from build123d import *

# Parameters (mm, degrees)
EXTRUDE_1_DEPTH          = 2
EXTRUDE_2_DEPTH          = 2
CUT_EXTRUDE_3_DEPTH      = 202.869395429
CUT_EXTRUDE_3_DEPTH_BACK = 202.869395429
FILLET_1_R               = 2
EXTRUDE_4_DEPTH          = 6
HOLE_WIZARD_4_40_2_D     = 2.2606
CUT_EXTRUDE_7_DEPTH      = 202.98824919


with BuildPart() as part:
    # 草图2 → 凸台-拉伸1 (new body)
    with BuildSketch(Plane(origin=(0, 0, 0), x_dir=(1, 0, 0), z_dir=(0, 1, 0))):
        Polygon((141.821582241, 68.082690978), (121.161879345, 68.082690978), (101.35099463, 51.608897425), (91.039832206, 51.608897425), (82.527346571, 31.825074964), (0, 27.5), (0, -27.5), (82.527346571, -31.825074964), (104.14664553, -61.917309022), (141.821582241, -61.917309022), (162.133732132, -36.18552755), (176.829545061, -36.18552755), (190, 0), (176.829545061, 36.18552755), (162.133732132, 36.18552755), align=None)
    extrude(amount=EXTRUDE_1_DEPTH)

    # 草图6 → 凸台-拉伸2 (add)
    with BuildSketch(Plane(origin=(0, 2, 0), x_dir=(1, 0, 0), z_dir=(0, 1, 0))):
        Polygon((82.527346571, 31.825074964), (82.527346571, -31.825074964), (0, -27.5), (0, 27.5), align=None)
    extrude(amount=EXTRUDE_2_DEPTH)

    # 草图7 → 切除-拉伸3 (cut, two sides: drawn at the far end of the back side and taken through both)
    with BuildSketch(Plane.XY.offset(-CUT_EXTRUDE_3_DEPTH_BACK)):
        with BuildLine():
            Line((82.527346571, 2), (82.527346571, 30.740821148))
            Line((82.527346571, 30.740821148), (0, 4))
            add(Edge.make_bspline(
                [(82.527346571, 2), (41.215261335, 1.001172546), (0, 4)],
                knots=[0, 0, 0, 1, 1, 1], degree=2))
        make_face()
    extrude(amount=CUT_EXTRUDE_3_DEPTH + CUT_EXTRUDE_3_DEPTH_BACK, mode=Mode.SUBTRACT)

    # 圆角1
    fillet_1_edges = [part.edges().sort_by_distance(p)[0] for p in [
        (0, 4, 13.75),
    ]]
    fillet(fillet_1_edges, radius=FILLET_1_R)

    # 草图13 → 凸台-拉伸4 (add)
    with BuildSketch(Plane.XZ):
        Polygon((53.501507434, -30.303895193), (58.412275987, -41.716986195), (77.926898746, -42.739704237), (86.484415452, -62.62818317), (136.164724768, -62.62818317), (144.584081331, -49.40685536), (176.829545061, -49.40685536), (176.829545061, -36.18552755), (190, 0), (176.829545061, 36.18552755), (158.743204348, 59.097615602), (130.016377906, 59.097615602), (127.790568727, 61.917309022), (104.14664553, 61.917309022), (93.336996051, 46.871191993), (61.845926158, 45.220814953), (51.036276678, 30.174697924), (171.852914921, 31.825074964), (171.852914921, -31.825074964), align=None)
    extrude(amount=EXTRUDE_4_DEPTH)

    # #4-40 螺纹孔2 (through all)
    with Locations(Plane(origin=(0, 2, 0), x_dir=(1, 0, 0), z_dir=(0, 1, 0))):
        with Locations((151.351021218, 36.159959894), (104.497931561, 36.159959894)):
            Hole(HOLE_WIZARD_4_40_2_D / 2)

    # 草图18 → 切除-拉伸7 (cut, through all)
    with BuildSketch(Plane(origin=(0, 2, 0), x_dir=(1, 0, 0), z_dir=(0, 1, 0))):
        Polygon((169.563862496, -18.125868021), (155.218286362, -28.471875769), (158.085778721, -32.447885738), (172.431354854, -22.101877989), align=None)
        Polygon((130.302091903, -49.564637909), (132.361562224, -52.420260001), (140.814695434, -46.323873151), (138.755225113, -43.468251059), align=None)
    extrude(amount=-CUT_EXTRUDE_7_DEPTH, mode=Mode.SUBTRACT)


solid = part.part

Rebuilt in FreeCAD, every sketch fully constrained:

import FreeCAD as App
import Part
import Sketcher
from FreeCAD import Vector
Q = App.Units.Quantity


def edges_at(feature, points):
    """Names of the edges that pass closest to the given points."""
    edges = feature.Shape.Edges
    near = lambda p: min(range(len(edges)), key=lambda i: edges[i].distToShape(Part.Vertex(*p))[0])
    return sorted({f"Edge{near(p) + 1}" for p in points})

doc = App.newDocument("Part")
body = doc.addObject("PartDesign::Body", "Body")

sketch1 = doc.addObject("Sketcher::SketchObject", "Sketch")
body.addObject(sketch1)
sketch1.AttachmentSupport = (doc.XZ_Plane, [""])
sketch1.MapMode = "FlatFace"
sketch1.addGeometry([
    Part.LineSegment(Vector(142, -68, 0), Vector(121, -68, 0)),
    Part.LineSegment(Vector(121, -68, 0), Vector(101, -52, 0)),
    Part.LineSegment(Vector(101, -52, 0), Vector(91, -52, 0)),
    Part.LineSegment(Vector(91, -52, 0), Vector(83, -32, 0)),
    Part.LineSegment(Vector(83, -32, 0), Vector(0, -28, 0)),
    Part.LineSegment(Vector(0, -28, 0), Vector(0, 28, 0)),
    Part.LineSegment(Vector(0, 28, 0), Vector(83, 32, 0)),
    Part.LineSegment(Vector(83, 32, 0), Vector(104, 62, 0)),
    Part.LineSegment(Vector(104, 62, 0), Vector(142, 62, 0)),
    Part.LineSegment(Vector(142, 62, 0), Vector(162, 36, 0)),
    Part.LineSegment(Vector(162, 36, 0), Vector(177, 36, 0)),
    Part.LineSegment(Vector(177, 36, 0), Vector(190, 0, 0)),
    Part.LineSegment(Vector(190, 0, 0), Vector(177, -36, 0)),
    Part.LineSegment(Vector(177, -36, 0), Vector(162, -36, 0)),
    Part.LineSegment(Vector(162, -36, 0), Vector(142, -68, 0)),
], False)
sketch1.addConstraint([
    Sketcher.Constraint("Coincident", 0, 2, 1, 1),
    Sketcher.Constraint("Coincident", 1, 2, 2, 1),
    Sketcher.Constraint("Coincident", 2, 2, 3, 1),
    Sketcher.Constraint("Coincident", 3, 2, 4, 1),
    Sketcher.Constraint("Coincident", 4, 2, 5, 1),
    Sketcher.Constraint("Coincident", 5, 2, 6, 1),
    Sketcher.Constraint("Coincident", 6, 2, 7, 1),
    Sketcher.Constraint("Coincident", 7, 2, 8, 1),
    Sketcher.Constraint("Coincident", 8, 2, 9, 1),
    Sketcher.Constraint("Coincident", 9, 2, 10, 1),
    Sketcher.Constraint("Coincident", 10, 2, 11, 1),
    Sketcher.Constraint("Coincident", 11, 2, 12, 1),
    Sketcher.Constraint("Coincident", 12, 2, 13, 1),
    Sketcher.Constraint("Coincident", 13, 2, 14, 1),
    Sketcher.Constraint("Coincident", 14, 2, 0, 1),
    Sketcher.Constraint("Horizontal", 0),
    Sketcher.Constraint("Horizontal", 2),
    Sketcher.Constraint("Vertical", 5),
    Sketcher.Constraint("Horizontal", 8),
    Sketcher.Constraint("Horizontal", 10),
    Sketcher.Constraint("Horizontal", 13),
    Sketcher.Constraint("Symmetric", 4, 2, 5, 2, -1, 1),
    Sketcher.Constraint("Symmetric", 3, 2, 6, 2, -1),
    Sketcher.Constraint("Symmetric", 10, 2, 12, 2, -1),
    Sketcher.Constraint("PointOnObject", 11, 2, -1),
    Sketcher.Constraint("Vertical", 9, 2, 13, 2),
    Sketcher.Constraint("Vertical", 8, 2, 14, 2),
    Sketcher.Constraint("DistanceY", 5, 1, 5, 2, 55.0),
    Sketcher.Constraint("Angle", 4, Q("177 deg")),
    Sketcher.Constraint("Angle", 11, Q("-70 deg")),
    Sketcher.Constraint("DistanceX", -1, 1, 11, 2, 190.0),
    Sketcher.Constraint("DistanceX", 6, 2, 7, 2, 21.619299),
    Sketcher.Constraint("DistanceX", 7, 2, 10, 2, 72.6829),
    Sketcher.Constraint("Distance", 7, 37.05316),
    Sketcher.Constraint("Distance", 9, 32.78274),
    Sketcher.Constraint("DistanceX", 0, 2, 0, 1, 20.659703),
    Sketcher.Constraint("DistanceX", 2, 2, 2, 1, 10.311162),
    Sketcher.Constraint("DistanceX", 8, 1, 8, 2, 37.674937),
    Sketcher.Constraint("DistanceX", 10, 1, 10, 2, 14.695813),
    Sketcher.Constraint("DistanceY", 0, 2, -1, 1, 68.082691),
    Sketcher.Constraint("DistanceX", 3, 2, 1, 2, 18.823648),
    Sketcher.Constraint("DistanceY", 1, 2, 12, 2, 15.42337),
])
pad1 = doc.addObject("PartDesign::Pad", "Pad")
body.addObject(pad1)
pad1.Profile = sketch1
pad1.Length = 2
pad1.Reversed = True

sketch2 = doc.addObject("Sketcher::SketchObject", "Sketch001")
body.addObject(sketch2)
sketch2.AttachmentSupport = (doc.XZ_Plane, [""])
sketch2.MapMode = "FlatFace"
sketch2.AttachmentOffset = App.Placement(Vector(0, 0, -2), App.Rotation())
sketch2.addGeometry([
    Part.LineSegment(Vector(83, 32, 0), Vector(83, -32, 0)),
    Part.LineSegment(Vector(83, -32, 0), Vector(0, -28, 0)),
    Part.LineSegment(Vector(0, -28, 0), Vector(0, 28, 0)),
    Part.LineSegment(Vector(0, 28, 0), Vector(83, 32, 0)),
], False)
sketch2.addConstraint([
    Sketcher.Constraint("Coincident", 0, 2, 1, 1),
    Sketcher.Constraint("Coincident", 1, 2, 2, 1),
    Sketcher.Constraint("Coincident", 2, 2, 3, 1),
    Sketcher.Constraint("Coincident", 3, 2, 0, 1),
    Sketcher.Constraint("Vertical", 0),
    Sketcher.Constraint("Vertical", 2),
    Sketcher.Constraint("Symmetric", 1, 2, 2, 2, -1, 1),
    Sketcher.Constraint("Equal", 1, 3),
    Sketcher.Constraint("DistanceY", 2, 1, 2, 2, 55.0),
    Sketcher.Constraint("Angle", 1, Q("177 deg")),
    Sketcher.Constraint("DistanceY", 0, 2, 0, 1, 63.65015),
])
pad2 = doc.addObject("PartDesign::Pad", "Pad001")
body.addObject(pad2)
pad2.Profile = sketch2
pad2.Length = 2
pad2.Reversed = True

sketch3 = doc.addObject("Sketcher::SketchObject", "Sketch002")
body.addObject(sketch3)
sketch3.AttachmentSupport = (doc.XY_Plane, [""])
sketch3.MapMode = "FlatFace"
sketch3.addGeometry([
    Part.LineSegment(Vector(82.527347, 2, 0), Vector(82.527347, 30.740821, 0)),
    Part.LineSegment(Vector(82.527347, 30.740821, 0), Vector(0, 4, 0)),
    Part.BSplineCurve([Vector(82.527347, 2, 0), Vector(41.215261, 1.001173, 0), Vector(0, 4, 0)], [3, 3], [0, 1], False, 2, [1, 1, 1], False),
], False)
sketch3.addConstraint([
    Sketcher.Constraint("Block", 2),
    Sketcher.Constraint("Coincident", 0, 2, 1, 1),
    Sketcher.Constraint("Coincident", 1, 2, 2, 2),
    Sketcher.Constraint("Coincident", 2, 1, 0, 1),
    Sketcher.Constraint("Vertical", 0),
    Sketcher.Constraint("DistanceY", 0, 1, 0, 2, 28.740821),
])
pocket1 = doc.addObject("PartDesign::Pocket", "Pocket")
body.addObject(pocket1)
pocket1.Profile = sketch3
pocket1.Type = "ThroughAll"
pocket1.Midplane = True
doc.recompute()

fillet = doc.addObject("PartDesign::Fillet", "Fillet")
body.addObject(fillet)
fillet.Base = (pocket1, edges_at(pocket1, [(0, 4, 0)]))
fillet.Radius = 2

sketch4 = doc.addObject("Sketcher::SketchObject", "Sketch003")
body.addObject(sketch4)
sketch4.AttachmentSupport = (doc.XZ_Plane, [""])
sketch4.MapMode = "FlatFace"
sketch4.addGeometry([
    Part.LineSegment(Vector(53.501507, -30.303895, 0), Vector(58.412276, -41.716986, 0)),
    Part.LineSegment(Vector(58.412276, -41.716986, 0), Vector(77.926899, -42.739704, 0)),
    Part.LineSegment(Vector(77.926899, -42.739704, 0), Vector(86.484415, -62.628183, 0)),
    Part.LineSegment(Vector(86.484415, -62.628183, 0), Vector(136.164725, -62.628183, 0)),
    Part.LineSegment(Vector(136.164725, -62.628183, 0), Vector(144.584081, -49.406855, 0)),
    Part.LineSegment(Vector(144.584081, -49.406855, 0), Vector(176.829545, -49.406855, 0)),
    Part.LineSegment(Vector(176.829545, -49.406855, 0), Vector(176.829545, -36.185528, 0)),
    Part.LineSegment(Vector(176.829545, -36.185528, 0), Vector(190, 0, 0)),
    Part.LineSegment(Vector(190, 0, 0), Vector(176.829545, 36.185528, 0)),
    Part.LineSegment(Vector(176.829545, 36.185528, 0), Vector(158.743204, 59.097616, 0)),
    Part.LineSegment(Vector(158.743204, 59.097616, 0), Vector(130.016378, 59.097616, 0)),
    Part.LineSegment(Vector(130.016378, 59.097616, 0), Vector(127.790569, 61.917309, 0)),
    Part.LineSegment(Vector(127.790569, 61.917309, 0), Vector(104.146646, 61.917309, 0)),
    Part.LineSegment(Vector(104.146646, 61.917309, 0), Vector(93.336996, 46.871192, 0)),
    Part.LineSegment(Vector(93.336996, 46.871192, 0), Vector(61.845926, 45.220815, 0)),
    Part.LineSegment(Vector(61.845926, 45.220815, 0), Vector(51.036277, 30.174698, 0)),
    Part.LineSegment(Vector(51.036277, 30.174698, 0), Vector(171.852915, 31.825075, 0)),
    Part.LineSegment(Vector(171.852915, 31.825075, 0), Vector(171.852915, -31.825075, 0)),
    Part.LineSegment(Vector(171.852915, -31.825075, 0), Vector(53.501507, -30.303895, 0)),
], False)
sketch4.addConstraint([
    Sketcher.Constraint("Coincident", 0, 2, 1, 1),
    Sketcher.Constraint("Coincident", 1, 2, 2, 1),
    Sketcher.Constraint("Coincident", 2, 2, 3, 1),
    Sketcher.Constraint("Coincident", 3, 2, 4, 1),
    Sketcher.Constraint("Coincident", 4, 2, 5, 1),
    Sketcher.Constraint("Coincident", 5, 2, 6, 1),
    Sketcher.Constraint("Coincident", 6, 2, 7, 1),
    Sketcher.Constraint("Coincident", 7, 2, 8, 1),
    Sketcher.Constraint("Coincident", 8, 2, 9, 1),
    Sketcher.Constraint("Coincident", 9, 2, 10, 1),
    Sketcher.Constraint("Coincident", 10, 2, 11, 1),
    Sketcher.Constraint("Coincident", 11, 2, 12, 1),
    Sketcher.Constraint("Coincident", 12, 2, 13, 1),
    Sketcher.Constraint("Coincident", 13, 2, 14, 1),
    Sketcher.Constraint("Coincident", 14, 2, 15, 1),
    Sketcher.Constraint("Coincident", 15, 2, 16, 1),
    Sketcher.Constraint("Coincident", 16, 2, 17, 1),
    Sketcher.Constraint("Coincident", 17, 2, 18, 1),
    Sketcher.Constraint("Coincident", 18, 2, 0, 1),
    Sketcher.Constraint("Horizontal", 3),
    Sketcher.Constraint("Horizontal", 5),
    Sketcher.Constraint("Vertical", 6),
    Sketcher.Constraint("Horizontal", 10),
    Sketcher.Constraint("Horizontal", 12),
    Sketcher.Constraint("Vertical", 17),
    Sketcher.Constraint("PointOnObject", 7, 2, -1),
    Sketcher.Constraint("DistanceX", -1, 1, 7, 2, 190.0),
    Sketcher.Constraint("DistanceX", 15, 2, 0, 2, 7.375999),
    Sketcher.Constraint("Distance", 9, 29.190401),
    Sketcher.Constraint("DistanceX", 3, 1, 3, 2, 49.680309),
    Sketcher.Constraint("DistanceY", 17, 2, 17, 1, 63.65015),
    Sketcher.Constraint("DistanceX", -1, 1, 1, 2, 77.926899),
    Sketcher.Constraint("DistanceX", 12, 2, 8, 2, 72.6829),
    Sketcher.Constraint("DistanceY", 14, 2, 10, 2, 13.876801),
    Sketcher.Constraint("DistanceY", 0, 2, 14, 2, 86.937801),
    Sketcher.Constraint("Distance", 2, 21.65139),
    Sketcher.Constraint("Distance", 11, 3.592339),
    Sketcher.Constraint("Distance", 13, 18.52658),
    Sketcher.Constraint("Distance", 15, 18.52658),
    Sketcher.Constraint("Distance", 16, 120.82791),
    Sketcher.Constraint("DistanceX", 5, 1, 5, 2, 32.245464),
    Sketcher.Constraint("DistanceX", 10, 2, 10, 1, 28.726826),
    Sketcher.Constraint("DistanceX", 12, 2, 12, 1, 23.643923),
    Sketcher.Constraint("DistanceY", 6, 1, 6, 2, 13.221328),
    Sketcher.Constraint("DistanceX", -1, 1, 4, 2, 144.584081),
    Sketcher.Constraint("DistanceX", -1, 1, 11, 2, 127.790569),
    Sketcher.Constraint("DistanceY", -1, 1, 11, 2, 61.917309),
    Sketcher.Constraint("DistanceY", -1, 1, 13, 2, 46.871192),
    Sketcher.Constraint("DistanceY", 1, 2, 0, 2, 1.022718),
    Sketcher.Constraint("DistanceY", 2, 2, 1, 2, 19.888479),
    Sketcher.Constraint("DistanceX", 0, 2, 2, 2, 28.072139),
    Sketcher.Constraint("DistanceY", 4, 2, 1, 2, 6.667151),
    Sketcher.Constraint("DistanceY", 3, 2, 8, 2, 98.813711),
    Sketcher.Constraint("DistanceX", 14, 2, 13, 2, 31.49107),
    Sketcher.Constraint("DistanceX", 16, 2, 8, 2, 4.97663),
    Sketcher.Constraint("DistanceX", 18, 2, 0, 2, 4.910769),
    Sketcher.Constraint("DistanceY", 0, 2, 18, 2, 11.413091),
])
pad3 = doc.addObject("PartDesign::Pad", "Pad002")
body.addObject(pad3)
pad3.Profile = sketch4
pad3.Length = 6

sketch5 = doc.addObject("Sketcher::SketchObject", "Sketch004")
body.addObject(sketch5)
sketch5.AttachmentSupport = (doc.XZ_Plane, [""])
sketch5.MapMode = "FlatFace"
sketch5.AttachmentOffset = App.Placement(Vector(0, 0, -2), App.Rotation())
sketch5.addGeometry([
    Part.Circle(Vector(151.4, -36.2, 0), Vector(0, 0, 1), 1.1),
    Part.Circle(Vector(104.5, -36.2, 0), Vector(0, 0, 1), 1.1),
], False)
sketch5.addConstraint([
    Sketcher.Constraint("Equal", 0, 1),
    Sketcher.Constraint("Horizontal", 0, 3, 1, 3),
    Sketcher.Constraint("Diameter", 0, 2.2606),
    Sketcher.Constraint("DistanceX", -1, 1, 0, 3, 151.351021),
    Sketcher.Constraint("DistanceY", 0, 3, -1, 1, 36.15996),
    Sketcher.Constraint("DistanceX", -1, 1, 1, 3, 104.497932),
])
doc.recompute()
hole = doc.addObject("PartDesign::Hole", "Hole")
body.addObject(hole)
hole.Profile = sketch5
hole.ThreadType = "None"
hole.Diameter = 2.2606
hole.DepthType = "ThroughAll"
hole.Reversed = True

sketch6 = doc.addObject("Sketcher::SketchObject", "Sketch005")
body.addObject(sketch6)
sketch6.AttachmentSupport = (doc.XZ_Plane, [""])
sketch6.MapMode = "FlatFace"
sketch6.AttachmentOffset = App.Placement(Vector(0, 0, -2), App.Rotation())
sketch6.addGeometry([
    Part.LineSegment(Vector(169.6, 18.1, 0), Vector(155.2, 28.5, 0)),
    Part.LineSegment(Vector(155.2, 28.5, 0), Vector(158.1, 32.4, 0)),
    Part.LineSegment(Vector(158.1, 32.4, 0), Vector(172.4, 22.1, 0)),
    Part.LineSegment(Vector(172.4, 22.1, 0), Vector(169.6, 18.1, 0)),
    Part.LineSegment(Vector(130.3, 49.6, 0), Vector(132.4, 52.4, 0)),
    Part.LineSegment(Vector(132.4, 52.4, 0), Vector(140.8, 46.3, 0)),
    Part.LineSegment(Vector(140.8, 46.3, 0), Vector(138.8, 43.5, 0)),
    Part.LineSegment(Vector(138.8, 43.5, 0), Vector(130.3, 49.6, 0)),
], False)
sketch6.addConstraint([
    Sketcher.Constraint("Coincident", 0, 2, 1, 1),
    Sketcher.Constraint("Coincident", 1, 2, 2, 1),
    Sketcher.Constraint("Coincident", 2, 2, 3, 1),
    Sketcher.Constraint("Coincident", 3, 2, 0, 1),
    Sketcher.Constraint("Coincident", 4, 2, 5, 1),
    Sketcher.Constraint("Coincident", 5, 2, 6, 1),
    Sketcher.Constraint("Coincident", 6, 2, 7, 1),
    Sketcher.Constraint("Coincident", 7, 2, 4, 1),
    Sketcher.Constraint("Perpendicular", 0, 1),
    Sketcher.Constraint("Perpendicular", 1, 2),
    Sketcher.Constraint("Perpendicular", 2, 3),
    Sketcher.Constraint("Parallel", 3, 4),
    Sketcher.Constraint("Perpendicular", 4, 5),
    Sketcher.Constraint("Perpendicular", 5, 6),
    Sketcher.Constraint("Perpendicular", 6, 7),
    Sketcher.Constraint("DistanceX", 4, 2, 3, 2, 37.2023),
    Sketcher.Constraint("Distance", 1, 4.902159),
    Sketcher.Constraint("Distance", 5, 10.422159),
    Sketcher.Constraint("DistanceX", -1, 1, 1, 2, 158.085779),
    Sketcher.Constraint("DistanceY", -1, 1, 3, 2, 18.125868),
    Sketcher.Constraint("DistanceY", -1, 1, 4, 2, 52.42026),
    Sketcher.Constraint("DistanceY", -1, 1, 6, 2, 43.468251),
    Sketcher.Constraint("DistanceX", -1, 1, 7, 2, 130.302092),
    Sketcher.Constraint("DistanceY", 0, 2, 1, 2, 3.97601),
])
pocket2 = doc.addObject("PartDesign::Pocket", "Pocket001")
body.addObject(pocket2)
pocket2.Profile = sketch6
pocket2.Type = "ThroughAll"
pocket2.Reversed = True

doc.recompute()
